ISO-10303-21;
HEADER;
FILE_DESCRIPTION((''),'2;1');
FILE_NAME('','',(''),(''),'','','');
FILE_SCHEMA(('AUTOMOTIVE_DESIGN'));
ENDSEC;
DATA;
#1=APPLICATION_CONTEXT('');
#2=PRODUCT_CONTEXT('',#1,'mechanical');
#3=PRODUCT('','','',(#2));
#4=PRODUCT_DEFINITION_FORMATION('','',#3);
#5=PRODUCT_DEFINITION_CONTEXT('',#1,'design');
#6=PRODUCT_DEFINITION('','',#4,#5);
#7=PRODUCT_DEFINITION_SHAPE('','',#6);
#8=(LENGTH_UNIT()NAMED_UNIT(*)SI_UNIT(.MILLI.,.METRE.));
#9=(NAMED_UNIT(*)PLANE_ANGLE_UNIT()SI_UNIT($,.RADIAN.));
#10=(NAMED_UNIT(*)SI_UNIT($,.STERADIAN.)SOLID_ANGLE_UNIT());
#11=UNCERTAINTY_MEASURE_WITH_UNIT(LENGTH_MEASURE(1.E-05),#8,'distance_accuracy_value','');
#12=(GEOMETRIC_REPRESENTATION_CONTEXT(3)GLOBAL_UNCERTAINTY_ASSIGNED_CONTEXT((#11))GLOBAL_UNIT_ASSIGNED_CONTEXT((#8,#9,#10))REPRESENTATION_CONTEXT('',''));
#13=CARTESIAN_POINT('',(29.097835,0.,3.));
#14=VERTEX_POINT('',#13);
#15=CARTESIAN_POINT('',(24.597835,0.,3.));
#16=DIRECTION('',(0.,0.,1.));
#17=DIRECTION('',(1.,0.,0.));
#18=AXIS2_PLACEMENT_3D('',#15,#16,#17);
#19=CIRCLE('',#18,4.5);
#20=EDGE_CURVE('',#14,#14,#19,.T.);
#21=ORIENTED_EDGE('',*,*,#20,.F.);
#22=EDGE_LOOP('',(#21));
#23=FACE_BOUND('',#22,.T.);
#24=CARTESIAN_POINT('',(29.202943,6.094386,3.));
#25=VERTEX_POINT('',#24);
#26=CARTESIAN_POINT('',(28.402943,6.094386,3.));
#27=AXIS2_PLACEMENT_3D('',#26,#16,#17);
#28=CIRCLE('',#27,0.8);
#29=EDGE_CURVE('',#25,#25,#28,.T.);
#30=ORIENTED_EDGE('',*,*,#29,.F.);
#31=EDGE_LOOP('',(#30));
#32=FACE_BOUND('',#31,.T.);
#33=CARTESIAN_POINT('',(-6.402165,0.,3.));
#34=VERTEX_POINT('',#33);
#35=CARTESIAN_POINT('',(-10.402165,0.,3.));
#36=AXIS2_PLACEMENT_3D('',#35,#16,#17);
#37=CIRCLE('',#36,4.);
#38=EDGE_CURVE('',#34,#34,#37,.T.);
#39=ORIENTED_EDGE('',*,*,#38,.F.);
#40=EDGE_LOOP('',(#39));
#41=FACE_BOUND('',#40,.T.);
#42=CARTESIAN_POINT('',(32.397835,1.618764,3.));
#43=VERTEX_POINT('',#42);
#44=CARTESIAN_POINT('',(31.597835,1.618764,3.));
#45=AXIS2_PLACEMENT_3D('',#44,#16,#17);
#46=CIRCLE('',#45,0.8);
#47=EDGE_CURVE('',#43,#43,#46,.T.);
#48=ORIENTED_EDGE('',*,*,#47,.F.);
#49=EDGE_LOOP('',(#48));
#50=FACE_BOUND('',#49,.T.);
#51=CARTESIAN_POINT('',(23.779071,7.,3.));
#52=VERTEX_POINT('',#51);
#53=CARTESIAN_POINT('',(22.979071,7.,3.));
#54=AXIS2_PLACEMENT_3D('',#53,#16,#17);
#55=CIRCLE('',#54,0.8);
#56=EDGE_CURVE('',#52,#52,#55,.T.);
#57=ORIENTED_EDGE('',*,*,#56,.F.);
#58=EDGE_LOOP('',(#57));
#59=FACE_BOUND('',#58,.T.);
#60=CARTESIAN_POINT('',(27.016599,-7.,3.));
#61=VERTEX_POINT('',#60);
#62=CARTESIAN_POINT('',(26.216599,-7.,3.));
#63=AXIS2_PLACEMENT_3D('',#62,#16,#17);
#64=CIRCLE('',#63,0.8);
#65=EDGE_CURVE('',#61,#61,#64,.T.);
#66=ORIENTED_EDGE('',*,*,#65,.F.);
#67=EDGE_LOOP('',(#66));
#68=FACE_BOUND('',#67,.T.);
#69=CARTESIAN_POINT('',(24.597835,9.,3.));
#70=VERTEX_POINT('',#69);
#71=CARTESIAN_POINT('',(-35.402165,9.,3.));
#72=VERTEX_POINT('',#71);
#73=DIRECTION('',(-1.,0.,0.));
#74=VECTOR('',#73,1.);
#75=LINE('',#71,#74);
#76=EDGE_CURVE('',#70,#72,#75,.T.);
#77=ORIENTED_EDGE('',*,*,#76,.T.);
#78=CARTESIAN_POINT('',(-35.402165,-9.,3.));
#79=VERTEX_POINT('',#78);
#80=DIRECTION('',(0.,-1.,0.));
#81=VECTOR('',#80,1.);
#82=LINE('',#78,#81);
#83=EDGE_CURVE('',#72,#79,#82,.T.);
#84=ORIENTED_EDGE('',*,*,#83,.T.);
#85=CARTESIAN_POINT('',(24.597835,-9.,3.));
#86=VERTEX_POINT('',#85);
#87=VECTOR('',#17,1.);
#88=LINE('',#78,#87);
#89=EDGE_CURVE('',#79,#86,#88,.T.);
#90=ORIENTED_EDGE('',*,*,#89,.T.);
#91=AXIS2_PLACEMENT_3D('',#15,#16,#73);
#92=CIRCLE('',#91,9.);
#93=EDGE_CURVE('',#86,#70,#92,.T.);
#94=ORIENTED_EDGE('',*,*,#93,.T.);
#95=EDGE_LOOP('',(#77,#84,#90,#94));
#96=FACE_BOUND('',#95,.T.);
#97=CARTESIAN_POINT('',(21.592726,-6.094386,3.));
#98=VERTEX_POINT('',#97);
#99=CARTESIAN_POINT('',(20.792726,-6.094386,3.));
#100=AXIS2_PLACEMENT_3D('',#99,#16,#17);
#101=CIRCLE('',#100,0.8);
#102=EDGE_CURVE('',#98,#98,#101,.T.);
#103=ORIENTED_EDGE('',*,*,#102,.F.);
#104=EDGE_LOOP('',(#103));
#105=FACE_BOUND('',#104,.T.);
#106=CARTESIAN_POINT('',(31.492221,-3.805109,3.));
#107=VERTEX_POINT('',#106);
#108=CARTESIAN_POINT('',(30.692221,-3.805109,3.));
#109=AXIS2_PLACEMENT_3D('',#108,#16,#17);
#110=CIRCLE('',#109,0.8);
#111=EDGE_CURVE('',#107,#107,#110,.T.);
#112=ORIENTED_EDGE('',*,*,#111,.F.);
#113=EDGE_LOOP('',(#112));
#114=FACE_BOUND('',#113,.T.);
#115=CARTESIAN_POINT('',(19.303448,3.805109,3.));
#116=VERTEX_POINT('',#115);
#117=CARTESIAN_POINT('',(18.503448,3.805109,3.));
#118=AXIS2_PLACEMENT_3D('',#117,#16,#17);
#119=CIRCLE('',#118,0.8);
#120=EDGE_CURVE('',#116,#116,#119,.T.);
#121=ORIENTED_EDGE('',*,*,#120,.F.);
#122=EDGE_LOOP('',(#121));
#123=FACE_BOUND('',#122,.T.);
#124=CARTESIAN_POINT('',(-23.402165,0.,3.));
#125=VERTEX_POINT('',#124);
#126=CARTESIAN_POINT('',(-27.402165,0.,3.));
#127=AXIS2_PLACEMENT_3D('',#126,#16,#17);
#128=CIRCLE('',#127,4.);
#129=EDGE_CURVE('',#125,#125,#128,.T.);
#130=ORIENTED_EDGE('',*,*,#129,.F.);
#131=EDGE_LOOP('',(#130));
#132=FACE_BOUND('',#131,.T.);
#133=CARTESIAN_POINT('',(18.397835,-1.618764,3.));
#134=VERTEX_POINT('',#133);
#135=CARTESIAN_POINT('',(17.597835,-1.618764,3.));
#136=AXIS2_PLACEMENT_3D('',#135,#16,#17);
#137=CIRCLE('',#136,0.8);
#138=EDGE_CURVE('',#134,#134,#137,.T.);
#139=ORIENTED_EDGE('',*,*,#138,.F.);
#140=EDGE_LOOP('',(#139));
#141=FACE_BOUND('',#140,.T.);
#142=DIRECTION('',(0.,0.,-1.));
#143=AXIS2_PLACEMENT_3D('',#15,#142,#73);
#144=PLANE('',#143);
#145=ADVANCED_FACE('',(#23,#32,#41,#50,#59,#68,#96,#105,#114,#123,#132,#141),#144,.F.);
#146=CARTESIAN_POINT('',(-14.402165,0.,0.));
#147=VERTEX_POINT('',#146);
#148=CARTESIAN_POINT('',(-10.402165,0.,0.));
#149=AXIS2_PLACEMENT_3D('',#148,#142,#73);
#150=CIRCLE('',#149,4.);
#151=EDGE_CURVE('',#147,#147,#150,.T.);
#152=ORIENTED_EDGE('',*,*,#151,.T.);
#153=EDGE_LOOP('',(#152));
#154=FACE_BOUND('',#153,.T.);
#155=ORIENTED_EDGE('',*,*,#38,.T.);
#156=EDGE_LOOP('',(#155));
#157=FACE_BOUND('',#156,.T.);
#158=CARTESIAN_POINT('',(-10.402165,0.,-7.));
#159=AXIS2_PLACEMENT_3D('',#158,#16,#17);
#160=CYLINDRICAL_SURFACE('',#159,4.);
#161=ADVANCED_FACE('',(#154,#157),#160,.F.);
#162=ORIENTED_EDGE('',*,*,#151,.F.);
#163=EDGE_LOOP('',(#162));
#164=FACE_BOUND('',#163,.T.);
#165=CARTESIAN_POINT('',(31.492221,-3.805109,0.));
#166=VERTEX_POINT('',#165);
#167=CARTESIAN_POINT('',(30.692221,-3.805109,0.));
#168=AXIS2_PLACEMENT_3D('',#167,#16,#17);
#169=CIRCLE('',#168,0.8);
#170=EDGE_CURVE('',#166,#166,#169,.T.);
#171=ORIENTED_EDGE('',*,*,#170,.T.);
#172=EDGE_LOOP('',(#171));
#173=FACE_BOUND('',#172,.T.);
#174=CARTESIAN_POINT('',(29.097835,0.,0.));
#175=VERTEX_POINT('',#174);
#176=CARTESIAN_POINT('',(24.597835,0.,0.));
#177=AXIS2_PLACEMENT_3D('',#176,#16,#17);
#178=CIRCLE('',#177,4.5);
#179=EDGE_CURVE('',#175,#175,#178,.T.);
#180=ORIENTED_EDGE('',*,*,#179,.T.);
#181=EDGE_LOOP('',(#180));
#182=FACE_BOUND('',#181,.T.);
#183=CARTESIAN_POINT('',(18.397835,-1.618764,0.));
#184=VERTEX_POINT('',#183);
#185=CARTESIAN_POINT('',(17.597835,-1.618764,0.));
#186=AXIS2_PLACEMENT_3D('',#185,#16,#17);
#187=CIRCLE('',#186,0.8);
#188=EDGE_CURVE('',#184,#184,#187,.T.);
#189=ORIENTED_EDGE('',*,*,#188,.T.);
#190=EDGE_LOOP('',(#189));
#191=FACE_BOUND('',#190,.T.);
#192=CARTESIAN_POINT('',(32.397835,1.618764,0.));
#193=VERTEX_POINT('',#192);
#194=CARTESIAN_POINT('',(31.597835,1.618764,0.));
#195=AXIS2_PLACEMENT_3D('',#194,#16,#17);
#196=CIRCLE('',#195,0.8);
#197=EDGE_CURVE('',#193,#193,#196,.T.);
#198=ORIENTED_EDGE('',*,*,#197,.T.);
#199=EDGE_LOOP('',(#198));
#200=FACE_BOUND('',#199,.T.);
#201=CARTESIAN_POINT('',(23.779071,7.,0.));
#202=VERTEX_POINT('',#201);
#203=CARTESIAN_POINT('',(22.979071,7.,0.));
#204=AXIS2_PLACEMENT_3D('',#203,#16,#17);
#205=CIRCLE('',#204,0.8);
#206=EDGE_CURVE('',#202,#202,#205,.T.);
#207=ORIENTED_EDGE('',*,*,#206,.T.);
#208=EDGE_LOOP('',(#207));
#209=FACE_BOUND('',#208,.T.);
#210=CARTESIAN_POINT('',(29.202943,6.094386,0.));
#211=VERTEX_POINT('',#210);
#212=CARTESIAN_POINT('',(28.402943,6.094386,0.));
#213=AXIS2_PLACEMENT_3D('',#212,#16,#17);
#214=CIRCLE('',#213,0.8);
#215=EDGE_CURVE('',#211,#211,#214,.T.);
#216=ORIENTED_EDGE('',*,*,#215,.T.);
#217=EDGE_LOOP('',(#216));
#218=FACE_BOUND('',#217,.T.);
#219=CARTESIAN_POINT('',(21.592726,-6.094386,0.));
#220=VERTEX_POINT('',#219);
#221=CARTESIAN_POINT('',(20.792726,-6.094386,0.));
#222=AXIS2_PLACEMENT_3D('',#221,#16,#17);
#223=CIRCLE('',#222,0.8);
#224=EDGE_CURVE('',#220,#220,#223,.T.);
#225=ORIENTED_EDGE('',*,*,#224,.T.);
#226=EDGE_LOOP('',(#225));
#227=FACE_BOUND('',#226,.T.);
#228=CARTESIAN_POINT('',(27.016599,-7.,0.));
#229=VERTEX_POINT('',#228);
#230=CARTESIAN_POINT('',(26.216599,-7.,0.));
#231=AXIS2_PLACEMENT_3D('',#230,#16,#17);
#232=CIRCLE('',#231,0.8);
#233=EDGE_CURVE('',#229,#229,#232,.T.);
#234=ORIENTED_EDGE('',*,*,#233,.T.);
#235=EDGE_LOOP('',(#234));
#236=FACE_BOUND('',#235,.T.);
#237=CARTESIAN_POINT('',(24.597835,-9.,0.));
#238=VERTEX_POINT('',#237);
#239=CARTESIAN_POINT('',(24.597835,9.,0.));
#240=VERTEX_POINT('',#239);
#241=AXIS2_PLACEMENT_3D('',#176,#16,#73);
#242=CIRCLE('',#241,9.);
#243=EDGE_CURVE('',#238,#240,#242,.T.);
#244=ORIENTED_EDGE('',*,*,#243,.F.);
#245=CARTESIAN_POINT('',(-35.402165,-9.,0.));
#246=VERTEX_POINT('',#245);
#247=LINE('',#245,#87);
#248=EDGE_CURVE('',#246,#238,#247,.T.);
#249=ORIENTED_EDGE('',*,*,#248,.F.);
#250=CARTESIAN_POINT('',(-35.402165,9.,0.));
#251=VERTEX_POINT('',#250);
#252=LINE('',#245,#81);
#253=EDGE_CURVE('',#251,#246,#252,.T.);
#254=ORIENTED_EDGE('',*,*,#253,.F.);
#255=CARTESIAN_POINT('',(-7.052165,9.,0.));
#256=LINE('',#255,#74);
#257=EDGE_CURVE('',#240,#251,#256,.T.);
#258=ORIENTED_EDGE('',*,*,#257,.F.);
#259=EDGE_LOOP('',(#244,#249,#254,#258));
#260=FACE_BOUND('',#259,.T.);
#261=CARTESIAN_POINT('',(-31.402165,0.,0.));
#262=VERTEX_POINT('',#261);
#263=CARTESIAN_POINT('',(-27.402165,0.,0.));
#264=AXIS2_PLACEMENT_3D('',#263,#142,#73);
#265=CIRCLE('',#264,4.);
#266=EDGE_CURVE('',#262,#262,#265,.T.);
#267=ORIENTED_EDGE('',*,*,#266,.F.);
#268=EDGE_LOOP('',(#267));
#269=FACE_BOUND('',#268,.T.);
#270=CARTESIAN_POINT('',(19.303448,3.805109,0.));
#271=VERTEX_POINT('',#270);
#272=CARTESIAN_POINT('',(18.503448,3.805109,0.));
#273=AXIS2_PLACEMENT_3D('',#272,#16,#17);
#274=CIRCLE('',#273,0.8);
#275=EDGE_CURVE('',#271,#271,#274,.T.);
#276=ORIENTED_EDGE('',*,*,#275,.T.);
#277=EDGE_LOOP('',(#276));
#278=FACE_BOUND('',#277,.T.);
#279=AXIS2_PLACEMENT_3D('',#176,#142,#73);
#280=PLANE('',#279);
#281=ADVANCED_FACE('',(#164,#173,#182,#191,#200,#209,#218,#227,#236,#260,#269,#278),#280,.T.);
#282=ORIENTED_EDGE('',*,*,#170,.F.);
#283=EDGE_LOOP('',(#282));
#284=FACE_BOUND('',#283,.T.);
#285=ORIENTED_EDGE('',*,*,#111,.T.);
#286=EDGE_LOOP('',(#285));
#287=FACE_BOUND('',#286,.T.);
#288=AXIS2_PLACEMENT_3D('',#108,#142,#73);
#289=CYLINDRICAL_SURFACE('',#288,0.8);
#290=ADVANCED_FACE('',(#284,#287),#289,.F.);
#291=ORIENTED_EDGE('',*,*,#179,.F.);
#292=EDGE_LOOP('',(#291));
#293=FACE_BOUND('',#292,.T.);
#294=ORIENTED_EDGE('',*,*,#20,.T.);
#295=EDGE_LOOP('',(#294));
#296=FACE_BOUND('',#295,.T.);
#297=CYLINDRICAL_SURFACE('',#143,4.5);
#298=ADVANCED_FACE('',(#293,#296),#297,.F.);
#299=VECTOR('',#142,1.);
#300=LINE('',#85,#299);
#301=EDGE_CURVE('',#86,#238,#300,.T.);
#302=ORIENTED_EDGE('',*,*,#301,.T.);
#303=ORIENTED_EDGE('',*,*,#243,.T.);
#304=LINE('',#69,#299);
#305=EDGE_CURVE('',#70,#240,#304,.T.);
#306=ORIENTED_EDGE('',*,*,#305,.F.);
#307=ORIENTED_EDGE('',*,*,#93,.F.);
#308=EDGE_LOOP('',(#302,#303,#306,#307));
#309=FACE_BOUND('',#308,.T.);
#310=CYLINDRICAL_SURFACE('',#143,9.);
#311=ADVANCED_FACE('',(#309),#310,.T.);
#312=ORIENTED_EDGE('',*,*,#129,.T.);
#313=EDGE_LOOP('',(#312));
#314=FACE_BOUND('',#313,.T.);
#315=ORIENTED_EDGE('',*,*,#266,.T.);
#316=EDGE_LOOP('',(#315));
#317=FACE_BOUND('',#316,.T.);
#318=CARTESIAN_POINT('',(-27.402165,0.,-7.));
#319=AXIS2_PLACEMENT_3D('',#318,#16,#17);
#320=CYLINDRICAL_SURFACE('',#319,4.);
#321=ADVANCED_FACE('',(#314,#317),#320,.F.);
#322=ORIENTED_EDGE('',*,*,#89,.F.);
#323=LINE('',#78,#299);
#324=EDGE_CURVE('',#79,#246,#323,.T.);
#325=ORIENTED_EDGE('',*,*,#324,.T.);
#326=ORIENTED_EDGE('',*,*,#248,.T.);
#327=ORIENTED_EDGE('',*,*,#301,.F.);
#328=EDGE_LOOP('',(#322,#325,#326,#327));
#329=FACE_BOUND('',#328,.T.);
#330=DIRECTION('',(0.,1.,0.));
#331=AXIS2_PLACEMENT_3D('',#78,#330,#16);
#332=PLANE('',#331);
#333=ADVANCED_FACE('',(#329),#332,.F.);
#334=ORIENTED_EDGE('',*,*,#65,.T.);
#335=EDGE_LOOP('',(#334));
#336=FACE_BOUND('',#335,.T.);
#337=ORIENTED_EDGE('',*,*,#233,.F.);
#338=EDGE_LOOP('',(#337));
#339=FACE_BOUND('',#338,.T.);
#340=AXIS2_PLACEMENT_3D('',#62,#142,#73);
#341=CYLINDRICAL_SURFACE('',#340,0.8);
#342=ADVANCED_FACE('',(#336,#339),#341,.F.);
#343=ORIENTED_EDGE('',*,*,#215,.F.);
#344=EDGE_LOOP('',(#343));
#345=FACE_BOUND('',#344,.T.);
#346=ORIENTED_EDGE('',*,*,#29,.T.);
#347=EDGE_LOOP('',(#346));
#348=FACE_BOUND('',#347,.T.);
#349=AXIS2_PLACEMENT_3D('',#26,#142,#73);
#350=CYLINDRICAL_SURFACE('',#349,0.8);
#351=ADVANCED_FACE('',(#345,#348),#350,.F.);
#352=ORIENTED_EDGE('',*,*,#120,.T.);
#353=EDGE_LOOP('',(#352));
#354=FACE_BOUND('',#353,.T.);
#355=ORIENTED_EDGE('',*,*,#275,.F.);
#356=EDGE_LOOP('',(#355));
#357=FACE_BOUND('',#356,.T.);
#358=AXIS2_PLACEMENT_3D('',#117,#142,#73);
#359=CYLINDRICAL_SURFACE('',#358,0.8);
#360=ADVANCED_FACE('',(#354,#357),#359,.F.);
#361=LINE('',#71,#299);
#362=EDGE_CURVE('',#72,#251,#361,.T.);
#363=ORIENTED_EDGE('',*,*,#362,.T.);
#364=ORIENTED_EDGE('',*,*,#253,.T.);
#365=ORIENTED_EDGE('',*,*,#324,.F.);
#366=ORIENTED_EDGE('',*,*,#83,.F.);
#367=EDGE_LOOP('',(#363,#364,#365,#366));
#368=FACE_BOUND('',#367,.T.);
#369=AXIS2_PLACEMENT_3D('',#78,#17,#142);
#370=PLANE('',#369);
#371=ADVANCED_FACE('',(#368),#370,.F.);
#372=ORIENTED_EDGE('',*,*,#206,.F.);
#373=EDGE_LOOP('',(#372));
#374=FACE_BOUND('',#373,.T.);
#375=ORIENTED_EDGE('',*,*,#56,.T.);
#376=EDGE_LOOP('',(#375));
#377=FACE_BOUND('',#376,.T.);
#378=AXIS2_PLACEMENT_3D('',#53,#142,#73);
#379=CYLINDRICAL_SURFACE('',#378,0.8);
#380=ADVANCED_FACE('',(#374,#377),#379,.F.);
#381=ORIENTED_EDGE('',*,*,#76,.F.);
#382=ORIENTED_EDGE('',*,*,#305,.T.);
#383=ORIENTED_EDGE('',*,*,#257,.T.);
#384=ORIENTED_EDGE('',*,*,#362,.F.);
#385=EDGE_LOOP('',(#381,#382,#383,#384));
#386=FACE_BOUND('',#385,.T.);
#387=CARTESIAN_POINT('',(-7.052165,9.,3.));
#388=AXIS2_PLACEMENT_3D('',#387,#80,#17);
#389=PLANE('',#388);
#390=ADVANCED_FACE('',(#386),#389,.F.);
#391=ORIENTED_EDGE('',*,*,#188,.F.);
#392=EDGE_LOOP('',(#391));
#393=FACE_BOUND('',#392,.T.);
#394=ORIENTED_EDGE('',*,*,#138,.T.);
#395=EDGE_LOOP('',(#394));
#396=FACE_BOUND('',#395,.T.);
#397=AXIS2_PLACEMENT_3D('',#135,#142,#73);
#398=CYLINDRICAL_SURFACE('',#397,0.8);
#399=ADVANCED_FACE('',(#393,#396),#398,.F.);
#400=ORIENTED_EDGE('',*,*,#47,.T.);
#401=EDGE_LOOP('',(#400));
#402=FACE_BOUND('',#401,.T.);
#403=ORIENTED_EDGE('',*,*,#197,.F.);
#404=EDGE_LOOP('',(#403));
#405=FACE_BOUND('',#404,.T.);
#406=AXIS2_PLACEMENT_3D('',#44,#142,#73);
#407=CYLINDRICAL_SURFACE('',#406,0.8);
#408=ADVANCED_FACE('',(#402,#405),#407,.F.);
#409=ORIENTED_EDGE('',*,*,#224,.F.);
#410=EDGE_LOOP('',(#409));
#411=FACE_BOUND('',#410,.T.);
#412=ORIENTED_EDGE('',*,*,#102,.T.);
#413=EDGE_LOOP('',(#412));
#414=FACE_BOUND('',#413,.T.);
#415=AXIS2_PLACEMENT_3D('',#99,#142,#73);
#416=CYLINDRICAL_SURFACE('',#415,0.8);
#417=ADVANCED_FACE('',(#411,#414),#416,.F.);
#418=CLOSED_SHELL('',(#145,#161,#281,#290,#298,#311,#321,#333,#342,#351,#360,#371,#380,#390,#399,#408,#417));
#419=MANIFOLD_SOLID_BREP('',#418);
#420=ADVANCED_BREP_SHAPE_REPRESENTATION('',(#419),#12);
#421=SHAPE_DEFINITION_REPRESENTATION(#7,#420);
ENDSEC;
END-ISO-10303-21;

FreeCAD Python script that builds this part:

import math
import FreeCAD as App
import Part
import Sketcher
from FreeCAD import Vector
Q = App.Units.Quantity

doc = App.newDocument("Part")
params = doc.addObject("Spreadsheet::Sheet", "Params")
for row, (alias, value) in enumerate([
    ("sketch1_diameter", "9 mm"),
    ("sketch1_radius", "9 mm"),
    ("sketch1_diameter2", "1.6 mm"),
    ("sketch1_width", "60 mm"),
    ("pad1_length", "3 mm"),
    ("sketch2_diameter", "8 mm"),
    ("pocket1_length", "10 mm"),
], start=1):
    params.set(f"A{row}", alias)
    params.set(f"B{row}", "=" + value)
    params.setAlias(f"B{row}", alias)

body = doc.addObject("PartDesign::Body", "Body")

sketch1 = body.newObject("Sketcher::SketchObject", "Sketch")
sketch1.AttachmentSupport = (doc.getObject("XY_Plane"), [""])
sketch1.MapMode = "FlatFace"
sketch1.addGeometry([
    Part.ArcOfCircle(Part.Circle(Vector(24.6, 0, 0), Vector(0, 0, 1), 9), math.radians(-90), math.radians(90)),
    Part.LineSegment(Vector(24.6, 9, 0), Vector(-35.4, 9, 0)),
    Part.LineSegment(Vector(-35.4, 9, 0), Vector(-35.4, -9, 0)),
    Part.LineSegment(Vector(-35.4, -9, 0), Vector(24.6, -9, 0)),
    Part.Circle(Vector(26.2, -7, 0), Vector(0, 0, 1), 0.8),
    Part.Circle(Vector(30.7, -3.8, 0), Vector(0, 0, 1), 0.8),
    Part.Circle(Vector(20.8, -6.1, 0), Vector(0, 0, 1), 0.8),
    Part.Circle(Vector(17.6, -1.6, 0), Vector(0, 0, 1), 0.8),
    Part.Circle(Vector(31.6, 1.6, 0), Vector(0, 0, 1), 0.8),
    Part.Circle(Vector(24.6, 0, 0), Vector(0, 0, 1), 4.5),
    Part.Circle(Vector(28.4, 6.1, 0), Vector(0, 0, 1), 0.8),
    Part.Circle(Vector(18.5, 3.8, 0), Vector(0, 0, 1), 0.8),
    Part.Circle(Vector(23, 7, 0), Vector(0, 0, 1), 0.8),
], False)
sketch1.addConstraint([
    Sketcher.Constraint("Tangent", 0, 2, 1, 1),
    Sketcher.Constraint("Coincident", 1, 2, 2, 1),
    Sketcher.Constraint("Coincident", 2, 2, 3, 1),
    Sketcher.Constraint("Tangent", 3, 2, 0, 1),
    Sketcher.Constraint("Horizontal", 1),
    Sketcher.Constraint("Vertical", 2),
    Sketcher.Constraint("Horizontal", 3),
    Sketcher.Constraint("Coincident", 9, 3, 0, 3),
    Sketcher.Constraint("Equal", 4, 5),
    Sketcher.Constraint("Equal", 5, 6),
    Sketcher.Constraint("Equal", 6, 7),
    Sketcher.Constraint("Equal", 7, 8),
    Sketcher.Constraint("Equal", 8, 10),
    Sketcher.Constraint("Equal", 10, 11),
    Sketcher.Constraint("Equal", 11, 12),
    Sketcher.Constraint("PointOnObject", 0, 3, -1),
    Sketcher.Constraint("Diameter", 9, Q("9 mm")),
    Sketcher.Constraint("Radius", 0, Q("9 mm")),
    Sketcher.Constraint("Diameter", 4, Q("1.6 mm")),
    Sketcher.Constraint("DistanceX", 1, 2, 1, 1, Q("60 mm")),
    Sketcher.Constraint("DistanceY", 4, 3, -1, 1, Q("7 mm")),
    Sketcher.Constraint("DistanceY", -1, 1, 12, 3, Q("7 mm")),
    Sketcher.Constraint("DistanceX", 7, 3, 0, 3, Q("7 mm")),
    Sketcher.Constraint("DistanceX", 0, 3, 8, 3, Q("7 mm")),
    Sketcher.Constraint("DistanceX", -1, 1, 4, 3, Q("26.216599 mm")),
    Sketcher.Constraint("DistanceX", -1, 1, 5, 3, Q("30.692221 mm")),
    Sketcher.Constraint("DistanceY", 5, 3, -1, 1, Q("3.805109 mm")),
    Sketcher.Constraint("DistanceX", -1, 1, 11, 3, Q("18.503448 mm")),
    Sketcher.Constraint("DistanceY", -1, 1, 11, 3, Q("3.805109 mm")),
    Sketcher.Constraint("DistanceX", -1, 1, 12, 3, Q("22.979071 mm")),
    Sketcher.Constraint("DistanceX", 6, 3, 0, 3, Q("3.805109 mm")),
    Sketcher.Constraint("DistanceY", 6, 3, 8, 3, Q("7.71315 mm")),
    Sketcher.Constraint("DistanceX", 10, 3, 8, 3, Q("3.194891 mm")),
    Sketcher.Constraint("DistanceX", -1, 1, 0, 3, Q("24.597835 mm")),
    Sketcher.Constraint("DistanceY", 6, 3, -1, 1, Q("6.094386 mm")),
    Sketcher.Constraint("DistanceY", 7, 3, -1, 1, Q("1.618764 mm")),
    Sketcher.Constraint("DistanceY", -1, 1, 10, 3, Q("6.094386 mm")),
])
sketch1.setExpression("Constraints[16]", "Params.sketch1_diameter")
sketch1.setExpression("Constraints[17]", "Params.sketch1_radius")
sketch1.setExpression("Constraints[18]", "Params.sketch1_diameter2")
sketch1.setExpression("Constraints[19]", "Params.sketch1_width")
pad1 = body.newObject("PartDesign::Pad", "Pad")
pad1.Profile = sketch1
pad1.setExpression("Length", "Params.pad1_length")

sketch2 = body.newObject("Sketcher::SketchObject", "Sketch001")
sketch2.AttachmentSupport = (doc.getObject("XY_Plane"), [""])
sketch2.MapMode = "FlatFace"
sketch2.AttachmentOffset = App.Placement(Vector(0, 0, 3), App.Rotation())
sketch2.addGeometry([
    Part.Circle(Vector(-27.4, 0, 0), Vector(0, 0, 1), 4),
    Part.Circle(Vector(-10.4, 0, 0), Vector(0, 0, 1), 4),
], False)
sketch2.addConstraint([
    Sketcher.Constraint("Equal", 0, 1),
    Sketcher.Constraint("PointOnObject", 0, 3, -1),
    Sketcher.Constraint("PointOnObject", 1, 3, -1),
    Sketcher.Constraint("Diameter", 0, Q("8 mm")),
    Sketcher.Constraint("DistanceX", 0, 3, 1, 3, Q("17 mm")),
    Sketcher.Constraint("DistanceX", 0, 3, -1, 1, Q("27.402165 mm")),
])
sketch2.setExpression("Constraints[3]", "Params.sketch2_diameter")
pocket1 = body.newObject("PartDesign::Pocket", "Pocket")
pocket1.Profile = sketch2
pocket1.setExpression("Length", "Params.pocket1_length")

doc.recompute()
